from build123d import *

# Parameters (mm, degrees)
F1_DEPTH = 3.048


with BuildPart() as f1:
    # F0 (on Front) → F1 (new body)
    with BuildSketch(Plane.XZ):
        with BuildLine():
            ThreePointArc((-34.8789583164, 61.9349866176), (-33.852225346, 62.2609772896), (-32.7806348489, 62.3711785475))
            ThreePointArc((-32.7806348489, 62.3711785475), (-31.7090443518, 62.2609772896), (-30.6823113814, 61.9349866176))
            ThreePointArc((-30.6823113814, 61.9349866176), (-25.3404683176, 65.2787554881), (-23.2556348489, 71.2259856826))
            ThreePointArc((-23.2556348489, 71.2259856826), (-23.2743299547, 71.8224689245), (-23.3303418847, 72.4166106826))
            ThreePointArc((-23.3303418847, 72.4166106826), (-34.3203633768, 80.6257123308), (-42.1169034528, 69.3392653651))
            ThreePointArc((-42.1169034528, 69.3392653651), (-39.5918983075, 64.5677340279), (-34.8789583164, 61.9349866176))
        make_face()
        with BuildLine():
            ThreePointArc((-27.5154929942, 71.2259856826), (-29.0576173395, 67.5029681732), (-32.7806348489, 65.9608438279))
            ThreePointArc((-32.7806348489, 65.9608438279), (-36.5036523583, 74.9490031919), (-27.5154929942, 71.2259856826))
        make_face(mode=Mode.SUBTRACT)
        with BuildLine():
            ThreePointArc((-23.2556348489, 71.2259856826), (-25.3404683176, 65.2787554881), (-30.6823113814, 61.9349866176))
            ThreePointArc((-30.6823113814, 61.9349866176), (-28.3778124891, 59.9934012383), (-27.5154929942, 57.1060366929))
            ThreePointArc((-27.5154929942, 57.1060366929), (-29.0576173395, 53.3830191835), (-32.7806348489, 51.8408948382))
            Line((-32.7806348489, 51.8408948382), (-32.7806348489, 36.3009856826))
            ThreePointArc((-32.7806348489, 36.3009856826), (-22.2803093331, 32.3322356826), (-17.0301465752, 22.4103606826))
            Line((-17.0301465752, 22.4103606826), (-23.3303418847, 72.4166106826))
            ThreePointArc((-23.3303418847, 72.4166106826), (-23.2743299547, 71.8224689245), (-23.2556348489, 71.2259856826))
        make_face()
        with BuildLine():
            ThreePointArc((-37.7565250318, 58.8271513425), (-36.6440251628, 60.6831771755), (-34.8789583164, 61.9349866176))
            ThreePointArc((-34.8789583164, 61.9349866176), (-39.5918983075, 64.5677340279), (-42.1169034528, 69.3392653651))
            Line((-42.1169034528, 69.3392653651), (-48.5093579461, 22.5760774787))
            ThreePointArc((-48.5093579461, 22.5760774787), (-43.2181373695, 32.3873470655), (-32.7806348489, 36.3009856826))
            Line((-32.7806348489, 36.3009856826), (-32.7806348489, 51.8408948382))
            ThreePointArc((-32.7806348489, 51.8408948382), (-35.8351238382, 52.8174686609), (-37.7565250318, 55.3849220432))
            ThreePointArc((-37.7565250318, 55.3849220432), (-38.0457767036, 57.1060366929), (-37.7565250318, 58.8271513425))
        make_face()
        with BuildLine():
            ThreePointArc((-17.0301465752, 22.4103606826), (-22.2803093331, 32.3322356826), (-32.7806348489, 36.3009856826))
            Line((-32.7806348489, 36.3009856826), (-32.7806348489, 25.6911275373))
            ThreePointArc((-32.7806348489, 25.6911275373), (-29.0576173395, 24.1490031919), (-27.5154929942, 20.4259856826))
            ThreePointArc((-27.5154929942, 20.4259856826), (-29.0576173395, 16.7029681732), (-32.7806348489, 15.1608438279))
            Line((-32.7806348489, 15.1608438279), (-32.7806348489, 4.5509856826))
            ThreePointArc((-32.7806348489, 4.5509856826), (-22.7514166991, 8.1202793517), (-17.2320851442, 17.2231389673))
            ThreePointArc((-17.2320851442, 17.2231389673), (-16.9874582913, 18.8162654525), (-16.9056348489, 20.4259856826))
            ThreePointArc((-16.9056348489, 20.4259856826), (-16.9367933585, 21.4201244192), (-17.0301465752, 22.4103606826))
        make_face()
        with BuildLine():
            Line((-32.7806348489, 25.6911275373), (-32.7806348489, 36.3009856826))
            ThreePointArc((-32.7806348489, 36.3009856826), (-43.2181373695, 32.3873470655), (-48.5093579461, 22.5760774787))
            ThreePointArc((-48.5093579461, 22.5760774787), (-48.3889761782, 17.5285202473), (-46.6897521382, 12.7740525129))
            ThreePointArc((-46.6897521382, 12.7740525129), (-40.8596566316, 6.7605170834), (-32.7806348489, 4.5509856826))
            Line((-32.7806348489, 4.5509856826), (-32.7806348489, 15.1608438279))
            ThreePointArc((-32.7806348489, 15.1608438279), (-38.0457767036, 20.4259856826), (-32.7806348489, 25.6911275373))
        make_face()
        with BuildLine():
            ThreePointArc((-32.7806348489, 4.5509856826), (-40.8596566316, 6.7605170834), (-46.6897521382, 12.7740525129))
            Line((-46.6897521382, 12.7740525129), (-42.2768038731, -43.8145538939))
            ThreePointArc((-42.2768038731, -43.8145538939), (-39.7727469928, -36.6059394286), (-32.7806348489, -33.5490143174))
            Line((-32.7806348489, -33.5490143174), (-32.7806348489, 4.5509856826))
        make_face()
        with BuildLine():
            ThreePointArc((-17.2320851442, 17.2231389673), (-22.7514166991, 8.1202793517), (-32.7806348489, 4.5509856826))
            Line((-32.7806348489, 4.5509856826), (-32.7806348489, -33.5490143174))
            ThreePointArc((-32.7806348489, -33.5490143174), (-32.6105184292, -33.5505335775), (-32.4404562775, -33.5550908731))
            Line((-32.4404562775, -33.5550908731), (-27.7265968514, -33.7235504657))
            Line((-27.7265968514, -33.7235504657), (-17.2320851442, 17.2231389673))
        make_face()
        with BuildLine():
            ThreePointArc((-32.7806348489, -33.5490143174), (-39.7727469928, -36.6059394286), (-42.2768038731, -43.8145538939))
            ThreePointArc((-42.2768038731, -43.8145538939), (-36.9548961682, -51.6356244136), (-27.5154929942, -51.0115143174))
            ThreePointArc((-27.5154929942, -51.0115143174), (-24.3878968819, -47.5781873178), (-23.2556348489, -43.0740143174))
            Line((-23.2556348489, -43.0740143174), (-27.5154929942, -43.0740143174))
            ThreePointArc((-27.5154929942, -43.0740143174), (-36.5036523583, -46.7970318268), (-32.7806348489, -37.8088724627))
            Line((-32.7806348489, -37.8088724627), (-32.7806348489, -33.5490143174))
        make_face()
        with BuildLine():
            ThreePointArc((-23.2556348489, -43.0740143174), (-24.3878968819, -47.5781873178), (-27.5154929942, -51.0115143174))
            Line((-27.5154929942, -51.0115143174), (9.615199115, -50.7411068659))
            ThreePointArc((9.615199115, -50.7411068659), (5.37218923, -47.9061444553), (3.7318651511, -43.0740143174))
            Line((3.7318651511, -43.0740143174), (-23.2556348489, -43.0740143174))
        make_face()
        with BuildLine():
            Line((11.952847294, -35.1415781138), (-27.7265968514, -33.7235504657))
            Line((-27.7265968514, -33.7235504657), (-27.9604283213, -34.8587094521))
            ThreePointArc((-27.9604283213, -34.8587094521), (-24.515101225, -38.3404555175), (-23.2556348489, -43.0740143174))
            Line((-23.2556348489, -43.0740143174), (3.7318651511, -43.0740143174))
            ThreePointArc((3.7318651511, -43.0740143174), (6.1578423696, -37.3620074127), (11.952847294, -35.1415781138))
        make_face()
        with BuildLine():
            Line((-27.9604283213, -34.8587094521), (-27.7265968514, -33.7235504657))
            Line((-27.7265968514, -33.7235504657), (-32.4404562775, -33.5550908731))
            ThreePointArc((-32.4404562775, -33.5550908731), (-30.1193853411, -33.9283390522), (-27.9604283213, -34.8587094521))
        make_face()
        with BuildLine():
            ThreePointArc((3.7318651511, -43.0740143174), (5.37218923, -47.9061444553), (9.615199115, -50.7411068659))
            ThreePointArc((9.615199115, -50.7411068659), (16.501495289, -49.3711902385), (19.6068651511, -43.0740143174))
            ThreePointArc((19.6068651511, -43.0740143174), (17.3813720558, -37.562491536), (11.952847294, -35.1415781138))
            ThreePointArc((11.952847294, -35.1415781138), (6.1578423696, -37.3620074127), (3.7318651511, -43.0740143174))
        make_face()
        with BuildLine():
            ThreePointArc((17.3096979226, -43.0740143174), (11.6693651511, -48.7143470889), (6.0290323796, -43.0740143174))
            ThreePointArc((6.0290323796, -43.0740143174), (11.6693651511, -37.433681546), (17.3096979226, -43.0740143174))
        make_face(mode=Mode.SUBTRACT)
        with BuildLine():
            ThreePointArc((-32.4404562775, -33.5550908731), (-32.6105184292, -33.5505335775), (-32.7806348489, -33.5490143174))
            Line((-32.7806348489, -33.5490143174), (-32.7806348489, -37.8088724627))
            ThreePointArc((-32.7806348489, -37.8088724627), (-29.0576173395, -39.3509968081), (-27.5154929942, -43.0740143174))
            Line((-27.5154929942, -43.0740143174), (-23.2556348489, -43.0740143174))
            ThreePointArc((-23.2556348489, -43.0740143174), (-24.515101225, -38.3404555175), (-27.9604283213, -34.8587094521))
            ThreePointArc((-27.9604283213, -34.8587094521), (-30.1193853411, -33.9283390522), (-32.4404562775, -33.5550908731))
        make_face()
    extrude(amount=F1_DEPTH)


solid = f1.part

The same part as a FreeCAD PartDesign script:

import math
import FreeCAD as App
import Part
import Sketcher

V = App.Vector
Q = App.Units.Quantity

doc = App.newDocument("Part")
body = doc.addObject("PartDesign::Body", "Body")

sketch1 = body.newObject("Sketcher::SketchObject", "Sketch")
sketch1.AttachmentSupport = (doc.getObject("XZ_Plane"), [""])
sketch1.MapMode = "FlatFace"
sketch1.addGeometry(Part.ArcOfCircle(Part.Circle(V(11.7, -43.1, 0), V(0, 0, 1), 7.9), math.radians(0), math.radians(88)), False)
sketch1.addGeometry(Part.LineSegment(V(12, -35.1, 0), V(-27.7, -33.7, 0)), False)
sketch1.addGeometry(Part.LineSegment(V(-27.7, -33.7, 0), V(-17.2, 17.2, 0)), False)
sketch1.addGeometry(Part.ArcOfCircle(Part.Circle(V(-32.8, 20.4, 0), V(0, 0, 1), 15.9), math.radians(-11.64), math.radians(0)), False)
sketch1.addGeometry(Part.ArcOfCircle(Part.Circle(V(-32.8, 20.4, 0), V(0, 0, 1), 15.9), math.radians(0), math.radians(7.18)), False)
sketch1.addGeometry(Part.LineSegment(V(-17, 22.4, 0), V(-23.3, 72.4, 0)), False)
sketch1.addGeometry(Part.ArcOfCircle(Part.Circle(V(-32.8, 71.2, 0), V(0, 0, 1), 9.5), math.radians(7), math.radians(191)), False)
sketch1.addGeometry(Part.LineSegment(V(-42.1, 69.3, 0), V(-48.5, 22.6, 0)), False)
sketch1.addGeometry(Part.ArcOfCircle(Part.Circle(V(-32.8, 20.4, 0), V(0, 0, 1), 15.9), math.radians(172), math.radians(209)), False)
sketch1.addGeometry(Part.LineSegment(V(-46.7, 12.8, 0), V(-42.3, -43.8, 0)), False)
sketch1.addGeometry(Part.ArcOfCircle(Part.Circle(V(-32.8, -43.1, 0), V(0, 0, 1), 9.5), math.radians(-176), math.radians(-56)), False)
sketch1.addGeometry(Part.LineSegment(V(-27.5, -51, 0), V(9.6, -50.7, 0)), False)
sketch1.addGeometry(Part.ArcOfCircle(Part.Circle(V(11.7, -43.1, 0), V(0, 0, 1), 7.9), math.radians(-105), math.radians(0)), False)
sketch1.addGeometry(Part.ArcOfCircle(Part.Circle(V(-32.8, 20.4, 0), V(0, 0, 1), 5.3), math.radians(-90), math.radians(0)), False)
sketch1.addGeometry(Part.ArcOfCircle(Part.Circle(V(-32.8, 20.4, 0), V(0, 0, 1), 5.3), math.radians(90), math.radians(270)), False)
sketch1.addGeometry(Part.ArcOfCircle(Part.Circle(V(-32.8, 20.4, 0), V(0, 0, 1), 5.3), math.radians(0), math.radians(90)), False)
sketch1.addGeometry(Part.ArcOfCircle(Part.Circle(V(-32.8, -43.1, 0), V(0, 0, 1), 5.3), math.radians(90), math.radians(360)), False)
sketch1.addGeometry(Part.ArcOfCircle(Part.Circle(V(-32.8, -43.1, 0), V(0, 0, 1), 5.3), math.radians(0), math.radians(90)), False)
sketch1.addGeometry(Part.ArcOfCircle(Part.Circle(V(11.7, -43.1, 0), V(0, 0, 1), 5.6), math.radians(0), math.radians(180)), False)
sketch1.addGeometry(Part.ArcOfCircle(Part.Circle(V(11.7, -43.1, 0), V(0, 0, 1), 5.6), math.radians(180), math.radians(360)), False)
sketch1.addGeometry(Part.ArcOfCircle(Part.Circle(V(-32.8, 57.1, 0), V(0, 0, 1), 5.3), math.radians(90), math.radians(113)), False)
sketch1.addGeometry(Part.ArcOfCircle(Part.Circle(V(-32.8, 57.1, 0), V(0, 0, 1), 5.3), math.radians(67), math.radians(90)), False)
sketch1.addGeometry(Part.ArcOfCircle(Part.Circle(V(-32.8, 57.1, 0), V(0, 0, 1), 5.3), math.radians(0), math.radians(67)), False)
sketch1.addGeometry(Part.ArcOfCircle(Part.Circle(V(-32.8, 57.1, 0), V(0, 0, 1), 5.3), math.radians(-90), math.radians(0)), False)
sketch1.addGeometry(Part.ArcOfCircle(Part.Circle(V(-32.8, 57.1, 0), V(0, 0, 1), 5.3), math.radians(-161), math.radians(-90)), False)
sketch1.addGeometry(Part.ArcOfCircle(Part.Circle(V(-32.8, 57.1, 0), V(0, 0, 1), 5.3), math.radians(161), math.radians(199)), False)
sketch1.addGeometry(Part.ArcOfCircle(Part.Circle(V(-32.8, 57.1, 0), V(0, 0, 1), 5.3), math.radians(113), math.radians(161)), False)
sketch1.addGeometry(Part.ArcOfCircle(Part.Circle(V(-32.8, 71.2, 0), V(0, 0, 1), 5.3), math.radians(0), math.radians(270)), False)
sketch1.addGeometry(Part.ArcOfCircle(Part.Circle(V(-32.8, 71.2, 0), V(0, 0, 1), 5.3), math.radians(-90), math.radians(0)), False)
sketch1.addConstraint(Sketcher.Constraint("Tangent", 0, 2, 1, 1))
sketch1.addConstraint(Sketcher.Constraint("Coincident", 1, 2, 2, 1))
sketch1.addConstraint(Sketcher.Constraint("Tangent", 2, 2, 3, 1))
sketch1.addConstraint(Sketcher.Constraint("Tangent", 3, 2, 4, 1))
sketch1.addConstraint(Sketcher.Constraint("Tangent", 4, 2, 5, 1))
sketch1.addConstraint(Sketcher.Constraint("Tangent", 5, 2, 6, 1))
sketch1.addConstraint(Sketcher.Constraint("Coincident", 6, 2, 7, 1))
sketch1.addConstraint(Sketcher.Constraint("Tangent", 7, 2, 8, 1))
sketch1.addConstraint(Sketcher.Constraint("Coincident", 8, 2, 9, 1))
sketch1.addConstraint(Sketcher.Constraint("Tangent", 9, 2, 10, 1))
sketch1.addConstraint(Sketcher.Constraint("Coincident", 10, 2, 11, 1))
sketch1.addConstraint(Sketcher.Constraint("Coincident", 11, 2, 12, 1))
sketch1.addConstraint(Sketcher.Constraint("Tangent", 12, 2, 0, 1))
sketch1.addConstraint(Sketcher.Constraint("Tangent", 13, 1, 14, 2))
sketch1.addConstraint(Sketcher.Constraint("Tangent", 14, 1, 15, 2))
sketch1.addConstraint(Sketcher.Constraint("Tangent", 15, 1, 13, 2))
sketch1.addConstraint(Sketcher.Constraint("Tangent", 16, 1, 17, 2))
sketch1.addConstraint(Sketcher.Constraint("Coincident", 17, 1, 16, 2))
sketch1.addConstraint(Sketcher.Constraint("Tangent", 18, 1, 19, 2))
sketch1.addConstraint(Sketcher.Constraint("Coincident", 19, 1, 18, 2))
sketch1.addConstraint(Sketcher.Constraint("Tangent", 20, 1, 21, 2))
sketch1.addConstraint(Sketcher.Constraint("Tangent", 21, 1, 22, 2))
sketch1.addConstraint(Sketcher.Constraint("Tangent", 22, 1, 23, 2))
sketch1.addConstraint(Sketcher.Constraint("Tangent", 23, 1, 24, 2))
sketch1.addConstraint(Sketcher.Constraint("Tangent", 24, 1, 25, 2))
sketch1.addConstraint(Sketcher.Constraint("Tangent", 25, 1, 26, 2))
sketch1.addConstraint(Sketcher.Constraint("Tangent", 26, 1, 20, 2))
sketch1.addConstraint(Sketcher.Constraint("Tangent", 27, 1, 28, 2))
sketch1.addConstraint(Sketcher.Constraint("Coincident", 28, 1, 27, 2))
sketch1.addConstraint(Sketcher.Constraint("Coincident", 8, 3, 3, 3))
sketch1.addConstraint(Sketcher.Constraint("Coincident", 13, 3, 3, 3))
sketch1.addConstraint(Sketcher.Constraint("Coincident", 16, 3, 10, 3))
sketch1.addConstraint(Sketcher.Constraint("Coincident", 18, 3, 0, 3))
sketch1.addConstraint(Sketcher.Constraint("Coincident", 22, 3, 20, 3))
sketch1.addConstraint(Sketcher.Constraint("Coincident", 24, 3, 20, 3))
sketch1.addConstraint(Sketcher.Constraint("Coincident", 27, 3, 6, 3))
sketch1.addConstraint(Sketcher.Constraint("Equal", 3, 4))
sketch1.addConstraint(Sketcher.Constraint("Equal", 4, 8))
sketch1.addConstraint(Sketcher.Constraint("Equal", 6, 10))
sketch1.addConstraint(Sketcher.Constraint("Equal", 0, 12))
sketch1.addConstraint(Sketcher.Constraint("Equal", 15, 16))
sketch1.addConstraint(Sketcher.Constraint("Equal", 17, 20))
sketch1.addConstraint(Sketcher.Constraint("Equal", 26, 27))
sketch1.addConstraint(Sketcher.Constraint("Horizontal", 0, 3, 10, 3))
sketch1.addConstraint(Sketcher.Constraint("Horizontal", 15, 3, 3, 2))
sketch1.addConstraint(Sketcher.Constraint("Horizontal", 19, 3, 12, 2))
sketch1.addConstraint(Sketcher.Constraint("Horizontal", 3, 2, 15, 1))
sketch1.addConstraint(Sketcher.Constraint("Horizontal", 12, 2, 17, 1))
sketch1.addConstraint(Sketcher.Constraint("Horizontal", 17, 1, 18, 1))
sketch1.addConstraint(Sketcher.Constraint("Horizontal", 18, 1, 19, 1))
sketch1.addConstraint(Sketcher.Constraint("Horizontal", 26, 3, 22, 1))
sketch1.addConstraint(Sketcher.Constraint("Horizontal", 21, 1, 26, 1))
sketch1.addConstraint(Sketcher.Constraint("Horizontal", 28, 3, 27, 1))
sketch1.addConstraint(Sketcher.Constraint("Vertical", 4, 3, 6, 3))
sketch1.addConstraint(Sketcher.Constraint("Vertical", 8, 3, 10, 3))
sketch1.addConstraint(Sketcher.Constraint("Vertical", 17, 3, 20, 3))
sketch1.addConstraint(Sketcher.Constraint("Vertical", 28, 3, 13, 1))
sketch1.addConstraint(Sketcher.Constraint("Vertical", 13, 1, 14, 1))
sketch1.addConstraint(Sketcher.Constraint("Vertical", 10, 2, 15, 1))
sketch1.addConstraint(Sketcher.Constraint("Vertical", 14, 1, 16, 1))
sketch1.addConstraint(Sketcher.Constraint("Vertical", 16, 1, 20, 1))
sketch1.addConstraint(Sketcher.Constraint("Vertical", 20, 1, 23, 1))
sketch1.addConstraint(Sketcher.Constraint("Vertical", 24, 1, 25, 1))
sketch1.addConstraint(Sketcher.Constraint("Vertical", 23, 1, 28, 1))
sketch1.addConstraint(Sketcher.Constraint("Radius", 0, Q("0.3125 in")))
sketch1.addConstraint(Sketcher.Constraint("Radius", 3, Q("0.625 in")))
sketch1.addConstraint(Sketcher.Constraint("Radius", 6, Q("0.375 in")))
sketch1.addConstraint(Sketcher.Constraint("DistanceY", 3, 3, 6, 3, Q("2 in")))
sketch1.addConstraint(Sketcher.Constraint("DistanceY", 0, 3, 3, 3, Q("2.5 in")))
sketch1.addConstraint(Sketcher.Constraint("DistanceX", 3, 3, 0, 3, Q("1.75 in")))
sketch1.addConstraint(Sketcher.Constraint("Radius", 13, 5.265142))
sketch1.addConstraint(Sketcher.Constraint("Radius", 18, 5.640333))
sketch1.addConstraint(Sketcher.Constraint("DistanceX", -1, 1, 11, 2, 9.615199))
sketch1.addConstraint(Sketcher.Constraint("DistanceY", 21, 1, 27, 1, 9.290999))
sketch1.addConstraint(Sketcher.Constraint("DistanceY", 0, 2, -1, 1, 35.141578))
sketch1.addConstraint(Sketcher.Constraint("DistanceY", 1, 2, -1, 1, 33.72355))
sketch1.addConstraint(Sketcher.Constraint("DistanceY", -1, 1, 2, 2, 17.223139))
sketch1.addConstraint(Sketcher.Constraint("DistanceX", 5, 2, -1, 1, 23.330342))
sketch1.addConstraint(Sketcher.Constraint("DistanceY", -1, 1, 20, 1, 62.371179))
sketch1.addConstraint(Sketcher.Constraint("DistanceY", -1, 1, 25, 1, 58.827151))
sketch1.addConstraint(Sketcher.Constraint("DistanceX", 6, 2, 28, 3, 9.336269))
sketch1.addConstraint(Sketcher.Constraint("DistanceX", 9, 2, 10, 3, 9.496169))
pad1 = body.newObject("PartDesign::Pad", "Pad")
pad1.Profile = sketch1
pad1.Length = Q("0.12 in")

doc.recompute()
